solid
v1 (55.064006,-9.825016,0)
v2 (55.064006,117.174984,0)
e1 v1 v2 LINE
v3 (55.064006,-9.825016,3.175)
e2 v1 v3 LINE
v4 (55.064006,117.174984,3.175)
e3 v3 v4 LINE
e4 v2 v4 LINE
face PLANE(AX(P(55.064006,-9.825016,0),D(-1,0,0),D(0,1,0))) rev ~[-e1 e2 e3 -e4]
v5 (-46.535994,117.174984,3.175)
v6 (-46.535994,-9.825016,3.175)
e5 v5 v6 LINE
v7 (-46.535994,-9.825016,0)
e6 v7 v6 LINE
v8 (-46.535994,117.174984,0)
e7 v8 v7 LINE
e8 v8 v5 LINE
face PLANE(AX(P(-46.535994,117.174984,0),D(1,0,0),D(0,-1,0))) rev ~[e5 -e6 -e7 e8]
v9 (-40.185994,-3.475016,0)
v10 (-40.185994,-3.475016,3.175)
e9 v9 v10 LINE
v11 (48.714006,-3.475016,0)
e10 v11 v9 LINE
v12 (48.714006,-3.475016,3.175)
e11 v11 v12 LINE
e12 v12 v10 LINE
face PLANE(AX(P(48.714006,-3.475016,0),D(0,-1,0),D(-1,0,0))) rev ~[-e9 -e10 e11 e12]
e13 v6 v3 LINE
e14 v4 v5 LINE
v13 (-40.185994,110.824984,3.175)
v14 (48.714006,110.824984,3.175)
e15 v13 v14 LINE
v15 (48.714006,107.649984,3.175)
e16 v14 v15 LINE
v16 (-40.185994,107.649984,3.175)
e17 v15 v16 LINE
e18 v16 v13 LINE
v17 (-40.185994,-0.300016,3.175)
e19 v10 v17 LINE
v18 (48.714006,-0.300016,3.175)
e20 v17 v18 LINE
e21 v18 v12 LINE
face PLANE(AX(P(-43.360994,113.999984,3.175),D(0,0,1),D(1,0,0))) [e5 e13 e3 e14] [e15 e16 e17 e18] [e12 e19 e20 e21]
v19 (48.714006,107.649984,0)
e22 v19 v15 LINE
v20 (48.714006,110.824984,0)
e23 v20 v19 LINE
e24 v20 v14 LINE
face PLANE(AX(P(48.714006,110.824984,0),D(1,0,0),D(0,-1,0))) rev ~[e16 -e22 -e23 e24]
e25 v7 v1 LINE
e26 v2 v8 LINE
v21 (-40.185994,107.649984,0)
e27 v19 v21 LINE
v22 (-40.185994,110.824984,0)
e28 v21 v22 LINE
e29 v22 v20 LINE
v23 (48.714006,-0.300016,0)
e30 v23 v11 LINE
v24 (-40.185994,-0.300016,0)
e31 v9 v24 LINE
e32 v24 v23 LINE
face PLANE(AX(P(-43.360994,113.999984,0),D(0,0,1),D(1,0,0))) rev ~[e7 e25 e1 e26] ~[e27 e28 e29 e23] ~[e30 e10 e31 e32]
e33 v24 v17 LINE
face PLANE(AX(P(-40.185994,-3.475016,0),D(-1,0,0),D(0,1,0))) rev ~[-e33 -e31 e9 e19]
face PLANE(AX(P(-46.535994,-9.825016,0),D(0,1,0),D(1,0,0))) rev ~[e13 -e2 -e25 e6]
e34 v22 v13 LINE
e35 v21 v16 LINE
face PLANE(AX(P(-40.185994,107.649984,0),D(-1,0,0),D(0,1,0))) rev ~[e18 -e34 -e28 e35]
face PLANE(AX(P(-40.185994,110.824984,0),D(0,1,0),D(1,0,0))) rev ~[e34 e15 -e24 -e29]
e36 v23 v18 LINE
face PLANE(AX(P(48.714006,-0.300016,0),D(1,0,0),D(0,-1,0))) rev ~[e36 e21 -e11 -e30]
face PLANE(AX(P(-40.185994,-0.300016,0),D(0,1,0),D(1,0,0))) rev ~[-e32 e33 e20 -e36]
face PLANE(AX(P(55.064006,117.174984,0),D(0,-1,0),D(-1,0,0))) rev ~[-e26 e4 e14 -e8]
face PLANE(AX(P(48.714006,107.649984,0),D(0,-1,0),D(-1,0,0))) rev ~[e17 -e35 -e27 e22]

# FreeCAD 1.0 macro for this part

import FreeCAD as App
import Part
import Sketcher
from FreeCAD import Vector
Q = App.Units.Quantity

doc = App.newDocument("Part")
body = doc.addObject("PartDesign::Body", "Body")

sketch1 = doc.addObject("Sketcher::SketchObject", "Sketch")
body.addObject(sketch1)
sketch1.AttachmentSupport = (doc.XY_Plane, [""])
sketch1.MapMode = "FlatFace"
sketch1.addGeometry(Part.LineSegment(Vector(-46.535994, 117.174984, 0), Vector(-46.535994, -9.825016, 0)), False)
sketch1.addGeometry(Part.LineSegment(Vector(-46.535994, -9.825016, 0), Vector(55.064006, -9.825016, 0)), False)
sketch1.addGeometry(Part.LineSegment(Vector(55.064006, -9.825016, 0), Vector(55.064006, 117.174984, 0)), False)
sketch1.addGeometry(Part.LineSegment(Vector(55.064006, 117.174984, 0), Vector(-46.535994, 117.174984, 0)), False)
sketch1.addGeometry(Part.LineSegment(Vector(-40.185994, 107.649984, 0), Vector(-40.185994, 110.824984, 0)), False)
sketch1.addGeometry(Part.LineSegment(Vector(-40.185994, 110.824984, 0), Vector(48.714006, 110.824984, 0)), False)
sketch1.addGeometry(Part.LineSegment(Vector(48.714006, 110.824984, 0), Vector(48.714006, 107.649984, 0)), False)
sketch1.addGeometry(Part.LineSegment(Vector(48.714006, 107.649984, 0), Vector(-40.185994, 107.649984, 0)), False)
sketch1.addGeometry(Part.LineSegment(Vector(48.714006, -0.300016, 0), Vector(48.714006, -3.475016, 0)), False)
sketch1.addGeometry(Part.LineSegment(Vector(48.714006, -3.475016, 0), Vector(-40.185994, -3.475016, 0)), False)
sketch1.addGeometry(Part.LineSegment(Vector(-40.185994, -3.475016, 0), Vector(-40.185994, -0.300016, 0)), False)
sketch1.addGeometry(Part.LineSegment(Vector(-40.185994, -0.300016, 0), Vector(48.714006, -0.300016, 0)), False)
sketch1.addConstraint(Sketcher.Constraint("Coincident", 0, 2, 1, 1))
sketch1.addConstraint(Sketcher.Constraint("Coincident", 1, 2, 2, 1))
sketch1.addConstraint(Sketcher.Constraint("Coincident", 2, 2, 3, 1))
sketch1.addConstraint(Sketcher.Constraint("Coincident", 3, 2, 0, 1))
sketch1.addConstraint(Sketcher.Constraint("Coincident", 4, 2, 5, 1))
sketch1.addConstraint(Sketcher.Constraint("Coincident", 5, 2, 6, 1))
sketch1.addConstraint(Sketcher.Constraint("Coincident", 6, 2, 7, 1))
sketch1.addConstraint(Sketcher.Constraint("Coincident", 7, 2, 4, 1))
sketch1.addConstraint(Sketcher.Constraint("Coincident", 8, 2, 9, 1))
sketch1.addConstraint(Sketcher.Constraint("Coincident", 9, 2, 10, 1))
sketch1.addConstraint(Sketcher.Constraint("Coincident", 10, 2, 11, 1))
sketch1.addConstraint(Sketcher.Constraint("Coincident", 11, 2, 8, 1))
sketch1.addConstraint(Sketcher.Constraint("Vertical", 0))
sketch1.addConstraint(Sketcher.Constraint("Horizontal", 1))
sketch1.addConstraint(Sketcher.Constraint("Vertical", 2))
sketch1.addConstraint(Sketcher.Constraint("Horizontal", 3))
sketch1.addConstraint(Sketcher.Constraint("Vertical", 4))
sketch1.addConstraint(Sketcher.Constraint("Horizontal", 5))
sketch1.addConstraint(Sketcher.Constraint("Vertical", 6))
sketch1.addConstraint(Sketcher.Constraint("Horizontal", 7))
sketch1.addConstraint(Sketcher.Constraint("Vertical", 8))
sketch1.addConstraint(Sketcher.Constraint("Horizontal", 9))
sketch1.addConstraint(Sketcher.Constraint("Vertical", 10))
sketch1.addConstraint(Sketcher.Constraint("Horizontal", 11))
sketch1.addConstraint(Sketcher.Constraint("Vertical", 6, 2, 8, 2))
sketch1.addConstraint(Sketcher.Constraint("Vertical", 7, 2, 9, 2))
sketch1.addConstraint(Sketcher.Constraint("Equal", 6, 8))
sketch1.addConstraint(Sketcher.Constraint("DistanceX", 1, 1, 1, 2, Q("4 in")))
sketch1.addConstraint(Sketcher.Constraint("DistanceY", 0, 2, 0, 1, Q("5 in")))
sketch1.addConstraint(Sketcher.Constraint("DistanceX", 5, 1, 5, 2, Q("3.5 in")))
sketch1.addConstraint(Sketcher.Constraint("DistanceY", 8, 2, 5, 2, Q("4.5 in")))
sketch1.addConstraint(Sketcher.Constraint("DistanceY", 4, 1, 4, 2, Q("0.125 in")))
sketch1.addConstraint(Sketcher.Constraint("DistanceX", 3, 2, 4, 2, Q("0.25 in")))
sketch1.addConstraint(Sketcher.Constraint("DistanceY", 4, 2, 3, 2, Q("0.25 in")))
sketch1.addConstraint(Sketcher.Constraint("DistanceX", 0, 2, -1, 1, Q("46.535994 mm")))
sketch1.addConstraint(Sketcher.Constraint("DistanceY", 0, 2, -1, 1, Q("9.825016 mm")))
pad1 = doc.addObject("PartDesign::Pad", "Pad")
body.addObject(pad1)
pad1.Profile = sketch1
pad1.Length = Q("0.125 in")

doc.recompute()
